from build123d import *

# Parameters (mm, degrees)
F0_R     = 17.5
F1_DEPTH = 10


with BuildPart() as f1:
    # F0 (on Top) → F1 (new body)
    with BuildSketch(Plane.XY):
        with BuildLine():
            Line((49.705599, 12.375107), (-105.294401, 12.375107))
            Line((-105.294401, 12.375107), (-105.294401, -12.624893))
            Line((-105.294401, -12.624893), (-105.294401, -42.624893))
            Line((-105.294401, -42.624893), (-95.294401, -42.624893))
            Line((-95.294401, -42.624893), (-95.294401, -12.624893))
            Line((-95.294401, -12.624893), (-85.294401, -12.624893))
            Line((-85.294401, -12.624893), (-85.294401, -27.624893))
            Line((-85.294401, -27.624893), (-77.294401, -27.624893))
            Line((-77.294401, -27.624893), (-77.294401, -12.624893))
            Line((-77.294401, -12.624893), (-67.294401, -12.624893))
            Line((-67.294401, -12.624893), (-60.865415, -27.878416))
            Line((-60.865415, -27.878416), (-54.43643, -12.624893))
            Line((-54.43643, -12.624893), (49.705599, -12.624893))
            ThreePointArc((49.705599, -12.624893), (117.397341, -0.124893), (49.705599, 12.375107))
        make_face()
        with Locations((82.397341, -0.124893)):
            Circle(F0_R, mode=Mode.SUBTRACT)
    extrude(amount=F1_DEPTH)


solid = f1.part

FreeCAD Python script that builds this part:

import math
import FreeCAD as App
import Part
import Sketcher
Q = App.Units.Quantity

doc = App.newDocument("Part")
body = doc.addObject("PartDesign::Body", "Body")

sketch1 = body.newObject("Sketcher::SketchObject", "Sketch")
sketch1.AttachmentSupport = (doc.getObject("XY_Plane"), [""])
sketch1.MapMode = "FlatFace"
sketch1.addGeometry(Part.LineSegment(App.Vector(50, 12, 0), App.Vector(-105, 12, 0)), False)
sketch1.addGeometry(Part.LineSegment(App.Vector(-105, 12, 0), App.Vector(-105, -43, 0)), False)
sketch1.addGeometry(Part.LineSegment(App.Vector(-105, -43, 0), App.Vector(-95, -43, 0)), False)
sketch1.addGeometry(Part.LineSegment(App.Vector(-95, -43, 0), App.Vector(-95, -13, 0)), False)
sketch1.addGeometry(Part.LineSegment(App.Vector(-95, -13, 0), App.Vector(-85, -13, 0)), False)
sketch1.addGeometry(Part.LineSegment(App.Vector(-85, -13, 0), App.Vector(-85, -28, 0)), False)
sketch1.addGeometry(Part.LineSegment(App.Vector(-85, -28, 0), App.Vector(-77, -28, 0)), False)
sketch1.addGeometry(Part.LineSegment(App.Vector(-77, -28, 0), App.Vector(-77, -13, 0)), False)
sketch1.addGeometry(Part.LineSegment(App.Vector(-77, -13, 0), App.Vector(-67, -13, 0)), False)
sketch1.addGeometry(Part.LineSegment(App.Vector(-67, -13, 0), App.Vector(-61, -28, 0)), False)
sketch1.addGeometry(Part.LineSegment(App.Vector(-61, -28, 0), App.Vector(-54, -13, 0)), False)
sketch1.addGeometry(Part.LineSegment(App.Vector(-54, -13, 0), App.Vector(50, -13, 0)), False)
sketch1.addGeometry(Part.ArcOfCircle(Part.Circle(App.Vector(82, 0, 0), App.Vector(0, 0, 1), 35), math.radians(-159), math.radians(159)), False)
sketch1.addGeometry(Part.Circle(App.Vector(82, 0, 0), App.Vector(0, 0, 1), 18), False)
sketch1.addConstraint(Sketcher.Constraint("Coincident", 0, 2, 1, 1))
sketch1.addConstraint(Sketcher.Constraint("Coincident", 1, 2, 2, 1))
sketch1.addConstraint(Sketcher.Constraint("Coincident", 2, 2, 3, 1))
sketch1.addConstraint(Sketcher.Constraint("Coincident", 3, 2, 4, 1))
sketch1.addConstraint(Sketcher.Constraint("Coincident", 4, 2, 5, 1))
sketch1.addConstraint(Sketcher.Constraint("Coincident", 5, 2, 6, 1))
sketch1.addConstraint(Sketcher.Constraint("Coincident", 6, 2, 7, 1))
sketch1.addConstraint(Sketcher.Constraint("Coincident", 7, 2, 8, 1))
sketch1.addConstraint(Sketcher.Constraint("Coincident", 8, 2, 9, 1))
sketch1.addConstraint(Sketcher.Constraint("Coincident", 9, 2, 10, 1))
sketch1.addConstraint(Sketcher.Constraint("Coincident", 10, 2, 11, 1))
sketch1.addConstraint(Sketcher.Constraint("Coincident", 11, 2, 12, 1))
sketch1.addConstraint(Sketcher.Constraint("Coincident", 12, 2, 0, 1))
sketch1.addConstraint(Sketcher.Constraint("Horizontal", 0))
sketch1.addConstraint(Sketcher.Constraint("Vertical", 1))
sketch1.addConstraint(Sketcher.Constraint("Horizontal", 2))
sketch1.addConstraint(Sketcher.Constraint("Vertical", 3))
sketch1.addConstraint(Sketcher.Constraint("Horizontal", 4))
sketch1.addConstraint(Sketcher.Constraint("Vertical", 5))
sketch1.addConstraint(Sketcher.Constraint("Horizontal", 6))
sketch1.addConstraint(Sketcher.Constraint("Vertical", 7))
sketch1.addConstraint(Sketcher.Constraint("Horizontal", 8))
sketch1.addConstraint(Sketcher.Constraint("Horizontal", 11))
sketch1.addConstraint(Sketcher.Constraint("Coincident", 13, 3, 12, 3))
sketch1.addConstraint(Sketcher.Constraint("Horizontal", 4, 2, 7, 2))
sketch1.addConstraint(Sketcher.Constraint("Horizontal", 8, 2, 10, 2))
sketch1.addConstraint(Sketcher.Constraint("Vertical", 11, 2, 12, 2))
sketch1.addConstraint(Sketcher.Constraint("Equal", 2, 4))
sketch1.addConstraint(Sketcher.Constraint("Equal", 4, 8))
sketch1.addConstraint(Sketcher.Constraint("Equal", 9, 10))
sketch1.addConstraint(Sketcher.Constraint("Diameter", 13, Q("35 mm")))
sketch1.addConstraint(Sketcher.Constraint("Radius", 12, Q("35 mm")))
sketch1.addConstraint(Sketcher.Constraint("DistanceX", 0, 2, 0, 1, Q("155 mm")))
sketch1.addConstraint(Sketcher.Constraint("DistanceX", 2, 1, 2, 2, Q("10 mm")))
sketch1.addConstraint(Sketcher.Constraint("DistanceX", 6, 1, 6, 2, Q("8 mm")))
sketch1.addConstraint(Sketcher.Constraint("DistanceY", 1, 2, 1, 1, Q("55 mm")))
sketch1.addConstraint(Sketcher.Constraint("DistanceY", 3, 1, 3, 2, Q("30 mm")))
sketch1.addConstraint(Sketcher.Constraint("DistanceY", 5, 2, 5, 1, Q("15 mm")))
sketch1.addConstraint(Sketcher.Constraint("Distance", 9, Q("16.553 mm")))
sketch1.addConstraint(Sketcher.Constraint("DistanceX", 11, 1, 11, 2, Q("104.142029 mm")))
sketch1.addConstraint(Sketcher.Constraint("DistanceX", 0, 2, -1, 1, Q("105.294401 mm")))
sketch1.addConstraint(Sketcher.Constraint("DistanceY", 12, 3, -1, 1, Q("0.124893 mm")))
pad1 = body.newObject("PartDesign::Pad", "Pad")
pad1.Profile = sketch1
pad1.Length = 10

doc.recompute()
